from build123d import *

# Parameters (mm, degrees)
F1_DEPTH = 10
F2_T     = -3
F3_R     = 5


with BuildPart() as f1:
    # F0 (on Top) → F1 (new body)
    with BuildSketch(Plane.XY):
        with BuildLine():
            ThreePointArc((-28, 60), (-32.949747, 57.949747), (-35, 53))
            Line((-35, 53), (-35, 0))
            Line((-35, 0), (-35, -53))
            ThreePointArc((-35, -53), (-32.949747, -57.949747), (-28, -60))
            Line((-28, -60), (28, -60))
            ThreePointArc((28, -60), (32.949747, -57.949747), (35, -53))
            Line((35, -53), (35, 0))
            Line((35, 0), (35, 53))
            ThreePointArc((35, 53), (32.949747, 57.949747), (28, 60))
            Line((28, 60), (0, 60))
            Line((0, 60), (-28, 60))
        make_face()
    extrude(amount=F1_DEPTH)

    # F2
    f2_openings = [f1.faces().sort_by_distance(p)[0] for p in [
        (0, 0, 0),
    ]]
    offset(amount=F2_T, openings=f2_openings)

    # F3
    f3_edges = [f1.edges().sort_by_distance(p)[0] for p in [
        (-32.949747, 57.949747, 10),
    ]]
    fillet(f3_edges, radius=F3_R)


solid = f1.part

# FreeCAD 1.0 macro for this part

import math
import FreeCAD as App
import Part
import Sketcher
from FreeCAD import Vector
Q = App.Units.Quantity


def edges_at(feature, points):
    """Names of the edges that pass closest to the given points."""
    edges = feature.Shape.Edges
    near = lambda p: min(range(len(edges)), key=lambda i: edges[i].distToShape(Part.Vertex(*p))[0])
    return sorted({f"Edge{near(p) + 1}" for p in points})


def faces_at(feature, points):
    """Names of the faces that lie closest to the given points."""
    faces = feature.Shape.Faces
    near = lambda p: min(range(len(faces)), key=lambda i: faces[i].distToShape(Part.Vertex(*p))[0])
    return sorted({f"Face{near(p) + 1}" for p in points})

doc = App.newDocument("Part")
body = doc.addObject("PartDesign::Body", "Body")

# Sketch on XY plane
sketch1 = body.newObject("Sketcher::SketchObject", "Sketch")
sketch1.AttachmentSupport = (doc.getObject("XY_Plane"), [""])
sketch1.MapMode = "FlatFace"
sketch1.addGeometry([
    Part.ArcOfCircle(Part.Circle(Vector(-27.999998, 52.999998, 0), Vector(0, 0, 1), 7.000002), math.radians(90.000013), math.radians(179.999987)),  # 0
    Part.LineSegment(Vector(-35, 53, 0), Vector(-35, -53, 0)),  # 1
    Part.ArcOfCircle(Part.Circle(Vector(-27.999998, -52.999998, 0), Vector(0, 0, 1), 7.000002), math.radians(-179.999987), math.radians(-90.000013)),  # 2
    Part.LineSegment(Vector(-28, -60, 0), Vector(28, -60, 0)),  # 3
    Part.ArcOfCircle(Part.Circle(Vector(27.999998, -52.999998, 0), Vector(0, 0, 1), 7.000002), math.radians(-89.999987), math.radians(-0.000013)),  # 4
    Part.LineSegment(Vector(35, -53, 0), Vector(35, 53, 0)),  # 5
    Part.ArcOfCircle(Part.Circle(Vector(27.999998, 52.999998, 0), Vector(0, 0, 1), 7.000002), math.radians(0.000013), math.radians(89.999987)),  # 6
    Part.LineSegment(Vector(28, 60, 0), Vector(-28, 60, 0)),  # 7
], False)
sketch1.addConstraint([
    Sketcher.Constraint("Tangent", 0, 2, 1, 1),
    Sketcher.Constraint("Tangent", 1, 2, 2, 1),
    Sketcher.Constraint("Tangent", 2, 2, 3, 1),
    Sketcher.Constraint("Tangent", 3, 2, 4, 1),
    Sketcher.Constraint("Tangent", 4, 2, 5, 1),
    Sketcher.Constraint("Tangent", 5, 2, 6, 1),
    Sketcher.Constraint("Tangent", 6, 2, 7, 1),
    Sketcher.Constraint("Tangent", 7, 2, 0, 1),
    Sketcher.Constraint("Vertical", 1),
    Sketcher.Constraint("Horizontal", 3),
    Sketcher.Constraint("Vertical", 5),
    Sketcher.Constraint("Horizontal", 7),
    Sketcher.Constraint("Equal", 0, 2),
    Sketcher.Constraint("Equal", 2, 4),
    Sketcher.Constraint("Equal", 4, 6),
    Sketcher.Constraint("Symmetric", 0, 3, 4, 3, -1, 1),
    Sketcher.Constraint("Radius", 0, Q("7.000002 mm")),
    Sketcher.Constraint("DistanceX", 3, 1, 3, 2, Q("56 mm")),
    Sketcher.Constraint("DistanceY", 1, 2, 1, 1, Q("106 mm")),
])
pad1 = body.newObject("PartDesign::Pad", "Pad")
pad1.Profile = sketch1
pad1.Length = 10
doc.recompute()

thickness = body.newObject("PartDesign::Thickness", "Thickness")
thickness.Base = (pad1, faces_at(pad1, [(0, 0, 0)]))
thickness.Value = 3
thickness.Reversed = True
thickness.Join = "Arc"
doc.recompute()

fillet = body.newObject("PartDesign::Fillet", "Fillet")
fillet.Base = (thickness, edges_at(thickness, [(-32.95, 57.95, 10)]))
fillet.Radius = 5

doc.recompute()
